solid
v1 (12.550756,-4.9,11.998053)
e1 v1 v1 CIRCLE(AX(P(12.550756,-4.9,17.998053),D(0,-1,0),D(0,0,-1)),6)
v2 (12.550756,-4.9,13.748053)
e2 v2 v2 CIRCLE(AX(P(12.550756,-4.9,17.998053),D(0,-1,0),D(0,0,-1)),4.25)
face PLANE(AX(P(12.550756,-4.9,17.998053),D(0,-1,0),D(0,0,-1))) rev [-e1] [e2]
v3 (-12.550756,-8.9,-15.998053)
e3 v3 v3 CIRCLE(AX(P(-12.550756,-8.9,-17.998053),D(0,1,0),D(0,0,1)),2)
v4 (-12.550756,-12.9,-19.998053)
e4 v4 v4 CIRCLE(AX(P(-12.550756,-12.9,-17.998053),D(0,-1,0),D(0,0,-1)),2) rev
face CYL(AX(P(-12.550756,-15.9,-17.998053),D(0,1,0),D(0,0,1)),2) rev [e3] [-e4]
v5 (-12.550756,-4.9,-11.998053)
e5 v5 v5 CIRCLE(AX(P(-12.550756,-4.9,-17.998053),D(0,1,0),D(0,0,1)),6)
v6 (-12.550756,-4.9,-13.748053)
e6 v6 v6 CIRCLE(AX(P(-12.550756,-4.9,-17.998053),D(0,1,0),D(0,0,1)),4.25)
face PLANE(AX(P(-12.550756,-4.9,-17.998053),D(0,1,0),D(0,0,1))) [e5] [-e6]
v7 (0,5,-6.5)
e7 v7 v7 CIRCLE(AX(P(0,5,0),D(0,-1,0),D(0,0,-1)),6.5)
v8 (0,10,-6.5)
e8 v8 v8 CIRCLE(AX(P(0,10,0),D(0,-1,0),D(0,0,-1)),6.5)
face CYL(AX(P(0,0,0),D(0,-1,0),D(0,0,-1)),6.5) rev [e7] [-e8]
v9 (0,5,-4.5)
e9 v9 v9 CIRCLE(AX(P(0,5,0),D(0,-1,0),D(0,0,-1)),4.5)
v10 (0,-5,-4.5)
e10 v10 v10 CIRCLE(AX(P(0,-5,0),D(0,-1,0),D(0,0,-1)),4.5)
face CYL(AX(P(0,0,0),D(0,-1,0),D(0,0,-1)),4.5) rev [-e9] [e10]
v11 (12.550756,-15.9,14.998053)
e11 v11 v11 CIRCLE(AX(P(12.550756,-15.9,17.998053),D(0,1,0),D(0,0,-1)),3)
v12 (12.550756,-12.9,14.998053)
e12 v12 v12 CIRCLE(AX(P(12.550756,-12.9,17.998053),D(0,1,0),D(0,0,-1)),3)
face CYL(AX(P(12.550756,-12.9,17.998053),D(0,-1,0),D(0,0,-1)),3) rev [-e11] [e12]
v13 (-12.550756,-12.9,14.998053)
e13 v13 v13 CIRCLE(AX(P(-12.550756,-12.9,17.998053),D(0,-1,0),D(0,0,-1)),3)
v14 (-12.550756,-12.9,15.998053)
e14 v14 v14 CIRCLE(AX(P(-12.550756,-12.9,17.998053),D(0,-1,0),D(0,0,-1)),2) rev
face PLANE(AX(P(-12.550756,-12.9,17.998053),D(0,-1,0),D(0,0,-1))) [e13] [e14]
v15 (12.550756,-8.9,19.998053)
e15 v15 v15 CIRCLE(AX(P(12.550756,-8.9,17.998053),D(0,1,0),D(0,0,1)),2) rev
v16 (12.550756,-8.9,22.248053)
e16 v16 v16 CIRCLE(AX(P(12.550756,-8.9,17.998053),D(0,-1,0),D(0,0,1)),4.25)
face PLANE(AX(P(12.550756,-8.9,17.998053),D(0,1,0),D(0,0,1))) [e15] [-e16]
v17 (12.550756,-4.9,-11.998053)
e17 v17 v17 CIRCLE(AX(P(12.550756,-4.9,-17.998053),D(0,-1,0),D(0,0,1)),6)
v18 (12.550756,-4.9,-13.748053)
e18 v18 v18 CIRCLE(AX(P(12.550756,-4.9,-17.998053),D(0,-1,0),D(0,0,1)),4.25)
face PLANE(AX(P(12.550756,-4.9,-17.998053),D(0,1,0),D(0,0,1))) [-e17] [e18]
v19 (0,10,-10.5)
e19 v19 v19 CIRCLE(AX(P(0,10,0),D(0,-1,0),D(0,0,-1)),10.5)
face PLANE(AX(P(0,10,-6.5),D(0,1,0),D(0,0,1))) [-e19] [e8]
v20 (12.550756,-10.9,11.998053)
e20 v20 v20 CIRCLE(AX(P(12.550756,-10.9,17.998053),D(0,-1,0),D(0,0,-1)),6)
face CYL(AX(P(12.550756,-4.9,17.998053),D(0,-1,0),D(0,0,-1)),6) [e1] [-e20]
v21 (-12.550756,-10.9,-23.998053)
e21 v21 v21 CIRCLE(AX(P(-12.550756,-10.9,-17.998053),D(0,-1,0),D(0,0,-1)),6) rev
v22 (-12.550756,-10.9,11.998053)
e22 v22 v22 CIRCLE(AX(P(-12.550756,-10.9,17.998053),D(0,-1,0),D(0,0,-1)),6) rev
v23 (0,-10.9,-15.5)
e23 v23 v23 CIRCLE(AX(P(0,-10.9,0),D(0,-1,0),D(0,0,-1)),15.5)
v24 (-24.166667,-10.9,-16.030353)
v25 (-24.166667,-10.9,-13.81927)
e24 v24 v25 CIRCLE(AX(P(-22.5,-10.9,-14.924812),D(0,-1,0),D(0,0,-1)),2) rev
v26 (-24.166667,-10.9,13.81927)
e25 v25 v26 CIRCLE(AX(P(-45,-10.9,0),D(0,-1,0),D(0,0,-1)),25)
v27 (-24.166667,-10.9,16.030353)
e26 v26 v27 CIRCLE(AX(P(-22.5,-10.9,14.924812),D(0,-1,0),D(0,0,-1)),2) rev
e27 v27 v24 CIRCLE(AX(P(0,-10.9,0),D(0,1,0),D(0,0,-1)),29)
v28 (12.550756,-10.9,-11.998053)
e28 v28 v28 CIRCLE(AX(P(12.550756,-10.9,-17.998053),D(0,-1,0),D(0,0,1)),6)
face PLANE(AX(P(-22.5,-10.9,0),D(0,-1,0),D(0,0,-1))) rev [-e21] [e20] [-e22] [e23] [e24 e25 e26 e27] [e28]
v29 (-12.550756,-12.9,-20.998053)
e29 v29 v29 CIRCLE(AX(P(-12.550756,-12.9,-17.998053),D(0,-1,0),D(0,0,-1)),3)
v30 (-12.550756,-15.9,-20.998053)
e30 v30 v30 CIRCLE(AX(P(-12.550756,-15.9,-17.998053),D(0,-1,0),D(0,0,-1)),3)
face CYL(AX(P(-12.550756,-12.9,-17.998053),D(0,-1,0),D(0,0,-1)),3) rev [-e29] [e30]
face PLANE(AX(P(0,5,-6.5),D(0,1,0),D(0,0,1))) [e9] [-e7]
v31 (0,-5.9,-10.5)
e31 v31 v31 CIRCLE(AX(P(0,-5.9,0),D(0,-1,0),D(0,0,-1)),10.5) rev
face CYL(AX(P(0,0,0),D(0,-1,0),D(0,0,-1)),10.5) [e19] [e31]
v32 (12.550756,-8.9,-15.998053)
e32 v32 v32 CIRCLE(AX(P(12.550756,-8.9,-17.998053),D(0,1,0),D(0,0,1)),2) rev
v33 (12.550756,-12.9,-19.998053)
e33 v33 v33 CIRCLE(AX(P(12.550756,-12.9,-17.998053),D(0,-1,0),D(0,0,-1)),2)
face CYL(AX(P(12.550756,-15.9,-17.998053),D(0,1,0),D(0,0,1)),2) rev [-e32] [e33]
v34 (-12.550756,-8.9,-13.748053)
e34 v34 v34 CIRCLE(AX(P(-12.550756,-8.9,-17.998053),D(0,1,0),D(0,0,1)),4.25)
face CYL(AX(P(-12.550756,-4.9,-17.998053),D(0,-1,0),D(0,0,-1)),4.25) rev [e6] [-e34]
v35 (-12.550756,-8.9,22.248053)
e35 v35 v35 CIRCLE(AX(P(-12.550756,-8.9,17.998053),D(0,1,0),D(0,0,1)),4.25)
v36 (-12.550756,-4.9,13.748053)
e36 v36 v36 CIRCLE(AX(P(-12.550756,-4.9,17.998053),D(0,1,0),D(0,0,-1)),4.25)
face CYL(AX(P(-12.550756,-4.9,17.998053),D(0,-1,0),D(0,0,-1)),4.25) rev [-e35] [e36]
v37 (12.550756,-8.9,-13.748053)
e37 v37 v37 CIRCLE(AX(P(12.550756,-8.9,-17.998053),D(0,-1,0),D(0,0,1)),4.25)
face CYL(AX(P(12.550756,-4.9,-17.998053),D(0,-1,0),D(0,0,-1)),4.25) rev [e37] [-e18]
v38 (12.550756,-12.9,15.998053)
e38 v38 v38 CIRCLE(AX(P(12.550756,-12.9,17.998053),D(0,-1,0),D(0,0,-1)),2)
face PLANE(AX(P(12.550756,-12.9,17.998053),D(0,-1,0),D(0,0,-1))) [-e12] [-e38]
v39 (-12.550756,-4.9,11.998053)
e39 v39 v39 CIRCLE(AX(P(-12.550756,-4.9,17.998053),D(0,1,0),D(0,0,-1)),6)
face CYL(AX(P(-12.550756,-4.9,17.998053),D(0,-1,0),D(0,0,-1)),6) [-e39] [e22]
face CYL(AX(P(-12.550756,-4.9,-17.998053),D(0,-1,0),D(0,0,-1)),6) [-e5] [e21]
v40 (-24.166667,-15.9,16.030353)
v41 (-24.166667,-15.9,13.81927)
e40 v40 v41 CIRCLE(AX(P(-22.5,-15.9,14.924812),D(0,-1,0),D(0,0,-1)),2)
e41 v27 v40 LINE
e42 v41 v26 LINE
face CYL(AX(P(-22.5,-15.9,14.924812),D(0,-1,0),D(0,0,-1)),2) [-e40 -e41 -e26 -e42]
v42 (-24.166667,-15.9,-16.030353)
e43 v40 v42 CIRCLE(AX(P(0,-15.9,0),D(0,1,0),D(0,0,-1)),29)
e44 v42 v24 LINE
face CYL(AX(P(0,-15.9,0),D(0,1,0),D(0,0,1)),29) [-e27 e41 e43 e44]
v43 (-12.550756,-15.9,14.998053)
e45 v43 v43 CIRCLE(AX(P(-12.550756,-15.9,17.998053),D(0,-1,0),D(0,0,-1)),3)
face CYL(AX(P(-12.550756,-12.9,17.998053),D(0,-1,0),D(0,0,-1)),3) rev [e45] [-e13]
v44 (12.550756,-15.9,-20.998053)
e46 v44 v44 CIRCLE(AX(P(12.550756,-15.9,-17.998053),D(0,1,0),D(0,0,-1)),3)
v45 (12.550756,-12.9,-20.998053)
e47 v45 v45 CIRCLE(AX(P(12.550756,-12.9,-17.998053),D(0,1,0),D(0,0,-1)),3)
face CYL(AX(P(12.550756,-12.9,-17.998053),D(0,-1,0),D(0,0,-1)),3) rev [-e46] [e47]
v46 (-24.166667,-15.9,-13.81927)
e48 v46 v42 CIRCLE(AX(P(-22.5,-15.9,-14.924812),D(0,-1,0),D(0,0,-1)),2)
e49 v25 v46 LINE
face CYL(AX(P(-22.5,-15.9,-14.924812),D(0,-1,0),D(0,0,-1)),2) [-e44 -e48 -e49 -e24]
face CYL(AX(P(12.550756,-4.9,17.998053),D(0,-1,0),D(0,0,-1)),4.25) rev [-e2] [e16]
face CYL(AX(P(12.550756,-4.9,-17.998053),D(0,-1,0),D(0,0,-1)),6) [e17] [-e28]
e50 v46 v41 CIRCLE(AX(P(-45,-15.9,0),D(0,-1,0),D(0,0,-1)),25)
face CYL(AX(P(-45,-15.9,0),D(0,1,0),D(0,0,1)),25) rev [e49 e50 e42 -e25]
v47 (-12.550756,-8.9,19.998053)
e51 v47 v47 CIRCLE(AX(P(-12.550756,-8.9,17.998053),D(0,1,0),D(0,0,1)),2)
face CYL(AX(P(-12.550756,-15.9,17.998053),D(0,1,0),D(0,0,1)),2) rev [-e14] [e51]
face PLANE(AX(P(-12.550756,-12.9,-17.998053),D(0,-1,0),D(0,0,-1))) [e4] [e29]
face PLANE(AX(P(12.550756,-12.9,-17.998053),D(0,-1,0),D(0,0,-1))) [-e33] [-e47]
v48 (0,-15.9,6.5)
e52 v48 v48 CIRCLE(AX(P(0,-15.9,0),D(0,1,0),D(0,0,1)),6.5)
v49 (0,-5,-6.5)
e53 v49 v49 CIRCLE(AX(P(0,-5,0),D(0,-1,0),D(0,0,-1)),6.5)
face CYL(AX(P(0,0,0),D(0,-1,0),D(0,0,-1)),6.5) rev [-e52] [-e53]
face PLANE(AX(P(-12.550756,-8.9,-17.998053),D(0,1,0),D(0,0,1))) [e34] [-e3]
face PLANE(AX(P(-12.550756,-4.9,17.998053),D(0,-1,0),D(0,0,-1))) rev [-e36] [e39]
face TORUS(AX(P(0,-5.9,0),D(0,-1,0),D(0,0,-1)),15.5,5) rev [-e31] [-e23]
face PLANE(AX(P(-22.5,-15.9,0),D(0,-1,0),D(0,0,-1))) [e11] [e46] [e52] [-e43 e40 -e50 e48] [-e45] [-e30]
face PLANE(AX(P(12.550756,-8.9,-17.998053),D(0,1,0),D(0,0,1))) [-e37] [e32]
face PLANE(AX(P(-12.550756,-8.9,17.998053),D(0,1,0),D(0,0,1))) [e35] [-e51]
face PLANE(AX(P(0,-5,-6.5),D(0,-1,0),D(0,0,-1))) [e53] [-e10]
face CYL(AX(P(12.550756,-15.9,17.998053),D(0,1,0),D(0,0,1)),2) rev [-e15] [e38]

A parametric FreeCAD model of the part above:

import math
import FreeCAD as App
import Part
import Sketcher
from FreeCAD import Vector
Q = App.Units.Quantity


def edges_at(feature, points):
    """Names of the edges that pass closest to the given points."""
    edges = feature.Shape.Edges
    near = lambda p: min(range(len(edges)), key=lambda i: edges[i].distToShape(Part.Vertex(*p))[0])
    return sorted({f"Edge{near(p) + 1}" for p in points})

doc = App.newDocument("Part")
body = doc.addObject("PartDesign::Body", "Body")

sketch1 = doc.addObject("Sketcher::SketchObject", "Sketch")
body.addObject(sketch1)
sketch1.AttachmentSupport = (doc.YZ_Plane, [""])
sketch1.MapMode = "FlatFace"
sketch1.addGeometry([
    Part.LineSegment(Vector(10, -6.5, 0), Vector(5, -6.5, 0)),
    Part.LineSegment(Vector(5, -6.5, 0), Vector(5, -4.5, 0)),
    Part.LineSegment(Vector(5, -4.5, 0), Vector(-5, -4.5, 0)),
    Part.LineSegment(Vector(-5, -4.5, 0), Vector(-5, -6.5, 0)),
    Part.LineSegment(Vector(-5, -6.5, 0), Vector(-10.9, -6.5, 0)),
    Part.LineSegment(Vector(-10.9, -6.5, 0), Vector(-10.9, -10.5, 0)),
    Part.LineSegment(Vector(-10.9, -10.5, 0), Vector(10, -10.5, 0)),
    Part.LineSegment(Vector(10, -10.5, 0), Vector(10, -6.5, 0)),
], False)
sketch1.addConstraint([
    Sketcher.Constraint("Coincident", 0, 2, 1, 1),
    Sketcher.Constraint("Coincident", 1, 2, 2, 1),
    Sketcher.Constraint("Coincident", 2, 2, 3, 1),
    Sketcher.Constraint("Coincident", 3, 2, 4, 1),
    Sketcher.Constraint("Coincident", 4, 2, 5, 1),
    Sketcher.Constraint("Coincident", 5, 2, 6, 1),
    Sketcher.Constraint("Coincident", 6, 2, 7, 1),
    Sketcher.Constraint("Coincident", 7, 2, 0, 1),
    Sketcher.Constraint("Horizontal", 0),
    Sketcher.Constraint("Vertical", 1),
    Sketcher.Constraint("Horizontal", 2),
    Sketcher.Constraint("Vertical", 3),
    Sketcher.Constraint("Horizontal", 4),
    Sketcher.Constraint("Vertical", 5),
    Sketcher.Constraint("Horizontal", 6),
    Sketcher.Constraint("Vertical", 7),
    Sketcher.Constraint("Symmetric", 0, 2, 3, 2, -2),
    Sketcher.Constraint("DistanceX", 0, 2, 0, 1, Q("5 mm")),
    Sketcher.Constraint("DistanceX", 2, 2, 2, 1, Q("10 mm")),
    Sketcher.Constraint("DistanceY", 1, 1, 1, 2, Q("2 mm")),
    Sketcher.Constraint("DistanceY", 5, 2, 5, 1, Q("4 mm")),
    Sketcher.Constraint("DistanceX", 4, 2, 4, 1, Q("5.9 mm")),
    Sketcher.Constraint("DistanceY", 0, 2, -1, 1, Q("6.5 mm")),
])
revolution = doc.addObject("PartDesign::Revolution", "Revolution")
body.addObject(revolution)
revolution.Profile = sketch1
revolution.ReferenceAxis = (sketch1, ["H_Axis"])
revolution.Angle = 360

sketch2 = doc.addObject("Sketcher::SketchObject", "Sketch001")
body.addObject(sketch2)
sketch2.AttachmentSupport = (doc.XZ_Plane, [""])
sketch2.MapMode = "FlatFace"
sketch2.AttachmentOffset = App.Placement(Vector(0, 0, 10.9), App.Rotation())
sketch2.addGeometry([
    Part.ArcOfCircle(Part.Circle(Vector(-45, 0, 0), Vector(0, 0, 1), 25), math.radians(-36), math.radians(36)),
    Part.ArcOfCircle(Part.Circle(Vector(0, 0, 0), Vector(0, 0, 1), 29), math.radians(-149), math.radians(149)),
    Part.Circle(Vector(0, 0, 0), Vector(0, 0, 1), 6),
], False)
sketch2.addConstraint([
    Sketcher.Constraint("Coincident", 0, 1, 1, 1),
    Sketcher.Constraint("Coincident", 1, 2, 0, 2),
    Sketcher.Constraint("Coincident", 1, 3, -1, 1),
    Sketcher.Constraint("Coincident", 2, 3, -1, 1),
    Sketcher.Constraint("PointOnObject", 0, 3, -1),
    Sketcher.Constraint("Diameter", 2, Q("13 mm")),
    Sketcher.Constraint("Radius", 0, Q("25 mm")),
    Sketcher.Constraint("Radius", 1, Q("29 mm")),
    Sketcher.Constraint("DistanceX", 0, 3, -1, 1, Q("45 mm")),
])
pad1 = doc.addObject("PartDesign::Pad", "Pad")
body.addObject(pad1)
pad1.Profile = sketch2
pad1.Length = 5
doc.recompute()

fillet = doc.addObject("PartDesign::Fillet", "Fillet")
body.addObject(fillet)
fillet.Base = (pad1, edges_at(pad1, [(0, -10.9, 10.5)]))
fillet.Radius = 5

sketch3 = doc.addObject("Sketcher::SketchObject", "Sketch002")
body.addObject(sketch3)
sketch3.AttachmentSupport = (doc.XZ_Plane, [""])
sketch3.MapMode = "FlatFace"
sketch3.AttachmentOffset = App.Placement(Vector(0, 0, 10.9), App.Rotation())
sketch3.addGeometry([
    Part.Circle(Vector(-12.6, -18, 0), Vector(0, 0, 1), 6),
    Part.Circle(Vector(-12.6, -18, 0), Vector(0, 0, 1), 4.2),
    Part.Circle(Vector(-12.6, 18, 0), Vector(0, 0, 1), 6),
    Part.Circle(Vector(-12.6, 18, 0), Vector(0, 0, 1), 4.2),
], False)
sketch3.addConstraint([
    Sketcher.Constraint("Coincident", 1, 3, 0, 3),
    Sketcher.Constraint("Coincident", 3, 3, 2, 3),
    Sketcher.Constraint("Equal", 0, 2),
    Sketcher.Constraint("Equal", 1, 3),
    Sketcher.Constraint("Symmetric", 0, 3, 2, 3, -1),
    Sketcher.Constraint("Diameter", 0, Q("12 mm")),
    Sketcher.Constraint("Diameter", 1, Q("8.5 mm")),
    Sketcher.Constraint("DistanceX", 0, 3, -1, 1, Q("12.550756 mm")),
    Sketcher.Constraint("DistanceY", 0, 3, -1, 1, Q("17.998053 mm")),
])
pad2 = doc.addObject("PartDesign::Pad", "Pad001")
body.addObject(pad2)
pad2.Profile = sketch3
pad2.Length = 6
pad2.Reversed = True

sketch4 = doc.addObject("Sketcher::SketchObject", "Sketch003")
body.addObject(sketch4)
sketch4.AttachmentSupport = (doc.XZ_Plane, [""])
sketch4.MapMode = "FlatFace"
sketch4.AttachmentOffset = App.Placement(Vector(0, 0, 10.9), App.Rotation())
sketch4.addGeometry([
    Part.Circle(Vector(-12.6, 18, 0), Vector(0, 0, 1), 4.2),
    Part.Circle(Vector(-12.6, -18, 0), Vector(0, 0, 1), 4.2),
], False)
sketch4.addConstraint([
    Sketcher.Constraint("Equal", 0, 1),
    Sketcher.Constraint("Symmetric", 0, 3, 1, 3, -1),
    Sketcher.Constraint("Diameter", 0, Q("8.5 mm")),
    Sketcher.Constraint("DistanceX", 0, 3, -1, 1, Q("12.550756 mm")),
    Sketcher.Constraint("DistanceY", -1, 1, 0, 3, Q("17.998053 mm")),
])
pad3 = doc.addObject("PartDesign::Pad", "Pad002")
body.addObject(pad3)
pad3.Profile = sketch4
pad3.Length = 2
pad3.Reversed = True

sketch5 = doc.addObject("Sketcher::SketchObject", "Sketch004")
body.addObject(sketch5)
sketch5.AttachmentSupport = (doc.XZ_Plane, [""])
sketch5.MapMode = "FlatFace"
sketch5.AttachmentOffset = App.Placement(Vector(0, 0, 10.9), App.Rotation())
sketch5.addGeometry([
    Part.Circle(Vector(-12.6, 18, 0), Vector(0, 0, 1), 2),
    Part.Circle(Vector(-12.6, -18, 0), Vector(0, 0, 1), 2),
], False)
sketch5.addConstraint([
    Sketcher.Constraint("Equal", 0, 1),
    Sketcher.Constraint("Symmetric", 0, 3, 1, 3, -1),
    Sketcher.Constraint("Diameter", 0, Q("4 mm")),
    Sketcher.Constraint("DistanceX", 0, 3, -1, 1, Q("12.550756 mm")),
    Sketcher.Constraint("DistanceY", -1, 1, 0, 3, Q("17.998053 mm")),
])
pocket1 = doc.addObject("PartDesign::Pocket", "Pocket")
body.addObject(pocket1)
pocket1.Profile = sketch5
pocket1.Length = 94.061067
pocket1.Midplane = True

sketch6 = doc.addObject("Sketcher::SketchObject", "Sketch005")
body.addObject(sketch6)
sketch6.AttachmentSupport = (doc.XZ_Plane, [""])
sketch6.MapMode = "FlatFace"
sketch6.AttachmentOffset = App.Placement(Vector(0, 0, 15.9), App.Rotation())
sketch6.addGeometry([
    Part.Circle(Vector(-12.6, 18, 0), Vector(0, 0, 1), 3),
    Part.Circle(Vector(-12.6, -18, 0), Vector(0, 0, 1), 3),
], False)
sketch6.addConstraint([
    Sketcher.Constraint("Equal", 0, 1),
    Sketcher.Constraint("Symmetric", 0, 3, 1, 3, -1),
    Sketcher.Constraint("Diameter", 0, Q("6 mm")),
    Sketcher.Constraint("DistanceX", 0, 3, -1, 1, Q("12.550756 mm")),
    Sketcher.Constraint("DistanceY", -1, 1, 0, 3, Q("17.998053 mm")),
])
pocket2 = doc.addObject("PartDesign::Pocket", "Pocket001")
body.addObject(pocket2)
pocket2.Profile = sketch6
pocket2.Length = 3
doc.recompute()

fillet2 = doc.addObject("PartDesign::Fillet", "Fillet001")
body.addObject(fillet2)
fillet2.Base = (pocket2, edges_at(pocket2, [(-24.9, -13.4, -14.866), (-24.9, -13.4, 14.866)]))
fillet2.Radius = 2
doc.recompute()

mirrored = doc.addObject("PartDesign::Mirrored", "Mirrored")
body.addObject(mirrored)
mirrored.Originals = [pad2, pad3, pocket1, pocket2]
mirrored.MirrorPlane = (doc.YZ_Plane, [""])
body.Tip = mirrored

doc.recompute()
